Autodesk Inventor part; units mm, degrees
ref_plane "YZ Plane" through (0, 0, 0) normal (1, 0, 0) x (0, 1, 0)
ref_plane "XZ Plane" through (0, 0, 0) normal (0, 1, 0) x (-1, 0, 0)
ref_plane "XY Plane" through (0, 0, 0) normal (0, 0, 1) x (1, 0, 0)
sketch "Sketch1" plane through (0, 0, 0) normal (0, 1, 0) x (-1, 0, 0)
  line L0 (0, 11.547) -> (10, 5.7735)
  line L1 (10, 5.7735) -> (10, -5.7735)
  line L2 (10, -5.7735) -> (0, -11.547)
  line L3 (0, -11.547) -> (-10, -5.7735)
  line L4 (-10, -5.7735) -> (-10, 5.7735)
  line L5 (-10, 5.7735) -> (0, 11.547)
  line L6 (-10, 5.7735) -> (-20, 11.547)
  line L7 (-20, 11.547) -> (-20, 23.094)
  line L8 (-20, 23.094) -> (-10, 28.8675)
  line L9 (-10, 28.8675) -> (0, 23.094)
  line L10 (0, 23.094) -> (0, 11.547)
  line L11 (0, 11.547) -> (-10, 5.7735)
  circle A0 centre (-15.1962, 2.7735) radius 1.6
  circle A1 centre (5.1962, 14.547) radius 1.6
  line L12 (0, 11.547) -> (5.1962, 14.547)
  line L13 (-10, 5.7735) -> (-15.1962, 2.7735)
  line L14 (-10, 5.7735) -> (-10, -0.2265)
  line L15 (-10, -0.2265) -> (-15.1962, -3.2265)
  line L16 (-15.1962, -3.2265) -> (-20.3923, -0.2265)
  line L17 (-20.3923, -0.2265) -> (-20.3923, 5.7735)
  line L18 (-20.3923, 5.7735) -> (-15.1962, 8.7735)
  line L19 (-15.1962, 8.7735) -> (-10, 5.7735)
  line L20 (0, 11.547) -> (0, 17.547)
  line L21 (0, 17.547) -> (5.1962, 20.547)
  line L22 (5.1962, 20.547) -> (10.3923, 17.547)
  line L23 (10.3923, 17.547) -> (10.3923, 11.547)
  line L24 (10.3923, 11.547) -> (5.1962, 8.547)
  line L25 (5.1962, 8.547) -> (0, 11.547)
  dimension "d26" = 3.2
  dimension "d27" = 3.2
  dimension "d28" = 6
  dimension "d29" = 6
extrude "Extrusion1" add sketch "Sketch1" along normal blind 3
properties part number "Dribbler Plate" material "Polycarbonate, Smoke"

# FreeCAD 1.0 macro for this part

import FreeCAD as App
import Part
import Sketcher

V = App.Vector
Q = App.Units.Quantity


def add_polygon(sketch, points):
    """Adds a closed chain of lines whose ends are joined by coincident constraints."""
    first, n = sketch.GeometryCount, len(points)
    for a, b in zip(points, points[1:] + points[:1]):
        sketch.addGeometry(Part.LineSegment(App.Vector(*a, 0), App.Vector(*b, 0)), False)
    for i in range(n):
        sketch.addConstraint(Sketcher.Constraint("Coincident", first + i, 2, first + (i + 1) % n, 1))

doc = App.newDocument("Part")
body = doc.addObject("PartDesign::Body", "Body")

# Sketch on XZ plane
sketch1 = doc.addObject("Sketcher::SketchObject", "Sketch")
body.addObject(sketch1)
sketch1.AttachmentSupport = (doc.XZ_Plane, [""])
sketch1.MapMode = "FlatFace"
add_polygon(sketch1, [(-5.2, 20.5), (0, 17.5), (0, 23.1), (10, 28.9), (20, 23.1), (20, 11.5), (15.2, 8.8), (20.4, 5.8), (20.4, -0.2), (15.2, -3.2), (10, -0.2), (10, -5.8), (0, -11.5), (-10, -5.8), (-10, 5.8), (-5.2, 8.5), (-10.4, 11.5), (-10.4, 17.5)])  # lines 0-17
sketch1.addGeometry(Part.Circle(V(-5.2, 14.5, 0), V(0, 0, 1), 1.6), False)  # 18
sketch1.addGeometry(Part.Circle(V(15.2, 2.8, 0), V(0, 0, 1), 1.6), False)  # 19
sketch1.addConstraint([
    Sketcher.Constraint("Vertical", 1),
    Sketcher.Constraint("Vertical", 4),
    Sketcher.Constraint("Vertical", 7),
    Sketcher.Constraint("Vertical", 10),
    Sketcher.Constraint("Vertical", 13),
    Sketcher.Constraint("Vertical", 16),
    Sketcher.Constraint("Equal", 18, 19),
    Sketcher.Constraint("Symmetric", 10, 2, 13, 2, -1, 1),
    Sketcher.Constraint("PointOnObject", 0, 2, -2),
    Sketcher.Constraint("PointOnObject", 11, 2, -2),
    Sketcher.Constraint("Parallel", 0, 3),
    Sketcher.Constraint("Parallel", 2, 5),
    Sketcher.Constraint("Parallel", 3, 6),
    Sketcher.Constraint("Parallel", 5, 8),
    Sketcher.Constraint("Parallel", 6, 9),
    Sketcher.Constraint("Parallel", 8, 11),
    Sketcher.Constraint("Parallel", 9, 12),
    Sketcher.Constraint("Parallel", 11, 14),
    Sketcher.Constraint("Parallel", 12, 15),
    Sketcher.Constraint("Parallel", 14, 17),
    Sketcher.Constraint("Horizontal", 1, 2, 3, 2),
    Sketcher.Constraint("Horizontal", 7, 2, 9, 2),
    Sketcher.Constraint("Horizontal", 10, 2, 12, 2),
    Sketcher.Constraint("Horizontal", 6, 2, 13, 2),
    Sketcher.Constraint("Horizontal", 4, 2, 15, 2),
    Sketcher.Constraint("Horizontal", 0, 2, 16, 2),
    Sketcher.Constraint("Vertical", 19, 3, 5, 2),
    Sketcher.Constraint("Vertical", 5, 2, 8, 2),
    Sketcher.Constraint("Vertical", 2, 2, 9, 2),
    Sketcher.Constraint("Vertical", 18, 3, 14, 2),
    Sketcher.Constraint("Equal", 1, 10),
    Sketcher.Constraint("Equal", 4, 13),
    Sketcher.Constraint("Equal", 0, 6),
    Sketcher.Constraint("Diameter", 18, Q("3.2 mm")),
    Sketcher.Constraint("DistanceY", 7, 2, 7, 1, Q("6 mm")),
    Sketcher.Constraint("Distance", 0, Q("6 mm")),
    Sketcher.Constraint("DistanceY", 19, 3, 5, 2, Q("6 mm")),
    Sketcher.Constraint("DistanceY", 8, 2, 19, 3, Q("6 mm")),
    Sketcher.Constraint("DistanceY", 14, 2, 18, 3, Q("6 mm")),
    Sketcher.Constraint("DistanceX", -1, 1, 2, 2, Q("10 mm")),
    Sketcher.Constraint("DistanceY", 1, 1, 1, 2, Q("5.547 mm")),
])
pad1 = doc.addObject("PartDesign::Pad", "Pad")
body.addObject(pad1)
pad1.Profile = sketch1
pad1.Length = 3
pad1.Reversed = True

doc.recompute()
